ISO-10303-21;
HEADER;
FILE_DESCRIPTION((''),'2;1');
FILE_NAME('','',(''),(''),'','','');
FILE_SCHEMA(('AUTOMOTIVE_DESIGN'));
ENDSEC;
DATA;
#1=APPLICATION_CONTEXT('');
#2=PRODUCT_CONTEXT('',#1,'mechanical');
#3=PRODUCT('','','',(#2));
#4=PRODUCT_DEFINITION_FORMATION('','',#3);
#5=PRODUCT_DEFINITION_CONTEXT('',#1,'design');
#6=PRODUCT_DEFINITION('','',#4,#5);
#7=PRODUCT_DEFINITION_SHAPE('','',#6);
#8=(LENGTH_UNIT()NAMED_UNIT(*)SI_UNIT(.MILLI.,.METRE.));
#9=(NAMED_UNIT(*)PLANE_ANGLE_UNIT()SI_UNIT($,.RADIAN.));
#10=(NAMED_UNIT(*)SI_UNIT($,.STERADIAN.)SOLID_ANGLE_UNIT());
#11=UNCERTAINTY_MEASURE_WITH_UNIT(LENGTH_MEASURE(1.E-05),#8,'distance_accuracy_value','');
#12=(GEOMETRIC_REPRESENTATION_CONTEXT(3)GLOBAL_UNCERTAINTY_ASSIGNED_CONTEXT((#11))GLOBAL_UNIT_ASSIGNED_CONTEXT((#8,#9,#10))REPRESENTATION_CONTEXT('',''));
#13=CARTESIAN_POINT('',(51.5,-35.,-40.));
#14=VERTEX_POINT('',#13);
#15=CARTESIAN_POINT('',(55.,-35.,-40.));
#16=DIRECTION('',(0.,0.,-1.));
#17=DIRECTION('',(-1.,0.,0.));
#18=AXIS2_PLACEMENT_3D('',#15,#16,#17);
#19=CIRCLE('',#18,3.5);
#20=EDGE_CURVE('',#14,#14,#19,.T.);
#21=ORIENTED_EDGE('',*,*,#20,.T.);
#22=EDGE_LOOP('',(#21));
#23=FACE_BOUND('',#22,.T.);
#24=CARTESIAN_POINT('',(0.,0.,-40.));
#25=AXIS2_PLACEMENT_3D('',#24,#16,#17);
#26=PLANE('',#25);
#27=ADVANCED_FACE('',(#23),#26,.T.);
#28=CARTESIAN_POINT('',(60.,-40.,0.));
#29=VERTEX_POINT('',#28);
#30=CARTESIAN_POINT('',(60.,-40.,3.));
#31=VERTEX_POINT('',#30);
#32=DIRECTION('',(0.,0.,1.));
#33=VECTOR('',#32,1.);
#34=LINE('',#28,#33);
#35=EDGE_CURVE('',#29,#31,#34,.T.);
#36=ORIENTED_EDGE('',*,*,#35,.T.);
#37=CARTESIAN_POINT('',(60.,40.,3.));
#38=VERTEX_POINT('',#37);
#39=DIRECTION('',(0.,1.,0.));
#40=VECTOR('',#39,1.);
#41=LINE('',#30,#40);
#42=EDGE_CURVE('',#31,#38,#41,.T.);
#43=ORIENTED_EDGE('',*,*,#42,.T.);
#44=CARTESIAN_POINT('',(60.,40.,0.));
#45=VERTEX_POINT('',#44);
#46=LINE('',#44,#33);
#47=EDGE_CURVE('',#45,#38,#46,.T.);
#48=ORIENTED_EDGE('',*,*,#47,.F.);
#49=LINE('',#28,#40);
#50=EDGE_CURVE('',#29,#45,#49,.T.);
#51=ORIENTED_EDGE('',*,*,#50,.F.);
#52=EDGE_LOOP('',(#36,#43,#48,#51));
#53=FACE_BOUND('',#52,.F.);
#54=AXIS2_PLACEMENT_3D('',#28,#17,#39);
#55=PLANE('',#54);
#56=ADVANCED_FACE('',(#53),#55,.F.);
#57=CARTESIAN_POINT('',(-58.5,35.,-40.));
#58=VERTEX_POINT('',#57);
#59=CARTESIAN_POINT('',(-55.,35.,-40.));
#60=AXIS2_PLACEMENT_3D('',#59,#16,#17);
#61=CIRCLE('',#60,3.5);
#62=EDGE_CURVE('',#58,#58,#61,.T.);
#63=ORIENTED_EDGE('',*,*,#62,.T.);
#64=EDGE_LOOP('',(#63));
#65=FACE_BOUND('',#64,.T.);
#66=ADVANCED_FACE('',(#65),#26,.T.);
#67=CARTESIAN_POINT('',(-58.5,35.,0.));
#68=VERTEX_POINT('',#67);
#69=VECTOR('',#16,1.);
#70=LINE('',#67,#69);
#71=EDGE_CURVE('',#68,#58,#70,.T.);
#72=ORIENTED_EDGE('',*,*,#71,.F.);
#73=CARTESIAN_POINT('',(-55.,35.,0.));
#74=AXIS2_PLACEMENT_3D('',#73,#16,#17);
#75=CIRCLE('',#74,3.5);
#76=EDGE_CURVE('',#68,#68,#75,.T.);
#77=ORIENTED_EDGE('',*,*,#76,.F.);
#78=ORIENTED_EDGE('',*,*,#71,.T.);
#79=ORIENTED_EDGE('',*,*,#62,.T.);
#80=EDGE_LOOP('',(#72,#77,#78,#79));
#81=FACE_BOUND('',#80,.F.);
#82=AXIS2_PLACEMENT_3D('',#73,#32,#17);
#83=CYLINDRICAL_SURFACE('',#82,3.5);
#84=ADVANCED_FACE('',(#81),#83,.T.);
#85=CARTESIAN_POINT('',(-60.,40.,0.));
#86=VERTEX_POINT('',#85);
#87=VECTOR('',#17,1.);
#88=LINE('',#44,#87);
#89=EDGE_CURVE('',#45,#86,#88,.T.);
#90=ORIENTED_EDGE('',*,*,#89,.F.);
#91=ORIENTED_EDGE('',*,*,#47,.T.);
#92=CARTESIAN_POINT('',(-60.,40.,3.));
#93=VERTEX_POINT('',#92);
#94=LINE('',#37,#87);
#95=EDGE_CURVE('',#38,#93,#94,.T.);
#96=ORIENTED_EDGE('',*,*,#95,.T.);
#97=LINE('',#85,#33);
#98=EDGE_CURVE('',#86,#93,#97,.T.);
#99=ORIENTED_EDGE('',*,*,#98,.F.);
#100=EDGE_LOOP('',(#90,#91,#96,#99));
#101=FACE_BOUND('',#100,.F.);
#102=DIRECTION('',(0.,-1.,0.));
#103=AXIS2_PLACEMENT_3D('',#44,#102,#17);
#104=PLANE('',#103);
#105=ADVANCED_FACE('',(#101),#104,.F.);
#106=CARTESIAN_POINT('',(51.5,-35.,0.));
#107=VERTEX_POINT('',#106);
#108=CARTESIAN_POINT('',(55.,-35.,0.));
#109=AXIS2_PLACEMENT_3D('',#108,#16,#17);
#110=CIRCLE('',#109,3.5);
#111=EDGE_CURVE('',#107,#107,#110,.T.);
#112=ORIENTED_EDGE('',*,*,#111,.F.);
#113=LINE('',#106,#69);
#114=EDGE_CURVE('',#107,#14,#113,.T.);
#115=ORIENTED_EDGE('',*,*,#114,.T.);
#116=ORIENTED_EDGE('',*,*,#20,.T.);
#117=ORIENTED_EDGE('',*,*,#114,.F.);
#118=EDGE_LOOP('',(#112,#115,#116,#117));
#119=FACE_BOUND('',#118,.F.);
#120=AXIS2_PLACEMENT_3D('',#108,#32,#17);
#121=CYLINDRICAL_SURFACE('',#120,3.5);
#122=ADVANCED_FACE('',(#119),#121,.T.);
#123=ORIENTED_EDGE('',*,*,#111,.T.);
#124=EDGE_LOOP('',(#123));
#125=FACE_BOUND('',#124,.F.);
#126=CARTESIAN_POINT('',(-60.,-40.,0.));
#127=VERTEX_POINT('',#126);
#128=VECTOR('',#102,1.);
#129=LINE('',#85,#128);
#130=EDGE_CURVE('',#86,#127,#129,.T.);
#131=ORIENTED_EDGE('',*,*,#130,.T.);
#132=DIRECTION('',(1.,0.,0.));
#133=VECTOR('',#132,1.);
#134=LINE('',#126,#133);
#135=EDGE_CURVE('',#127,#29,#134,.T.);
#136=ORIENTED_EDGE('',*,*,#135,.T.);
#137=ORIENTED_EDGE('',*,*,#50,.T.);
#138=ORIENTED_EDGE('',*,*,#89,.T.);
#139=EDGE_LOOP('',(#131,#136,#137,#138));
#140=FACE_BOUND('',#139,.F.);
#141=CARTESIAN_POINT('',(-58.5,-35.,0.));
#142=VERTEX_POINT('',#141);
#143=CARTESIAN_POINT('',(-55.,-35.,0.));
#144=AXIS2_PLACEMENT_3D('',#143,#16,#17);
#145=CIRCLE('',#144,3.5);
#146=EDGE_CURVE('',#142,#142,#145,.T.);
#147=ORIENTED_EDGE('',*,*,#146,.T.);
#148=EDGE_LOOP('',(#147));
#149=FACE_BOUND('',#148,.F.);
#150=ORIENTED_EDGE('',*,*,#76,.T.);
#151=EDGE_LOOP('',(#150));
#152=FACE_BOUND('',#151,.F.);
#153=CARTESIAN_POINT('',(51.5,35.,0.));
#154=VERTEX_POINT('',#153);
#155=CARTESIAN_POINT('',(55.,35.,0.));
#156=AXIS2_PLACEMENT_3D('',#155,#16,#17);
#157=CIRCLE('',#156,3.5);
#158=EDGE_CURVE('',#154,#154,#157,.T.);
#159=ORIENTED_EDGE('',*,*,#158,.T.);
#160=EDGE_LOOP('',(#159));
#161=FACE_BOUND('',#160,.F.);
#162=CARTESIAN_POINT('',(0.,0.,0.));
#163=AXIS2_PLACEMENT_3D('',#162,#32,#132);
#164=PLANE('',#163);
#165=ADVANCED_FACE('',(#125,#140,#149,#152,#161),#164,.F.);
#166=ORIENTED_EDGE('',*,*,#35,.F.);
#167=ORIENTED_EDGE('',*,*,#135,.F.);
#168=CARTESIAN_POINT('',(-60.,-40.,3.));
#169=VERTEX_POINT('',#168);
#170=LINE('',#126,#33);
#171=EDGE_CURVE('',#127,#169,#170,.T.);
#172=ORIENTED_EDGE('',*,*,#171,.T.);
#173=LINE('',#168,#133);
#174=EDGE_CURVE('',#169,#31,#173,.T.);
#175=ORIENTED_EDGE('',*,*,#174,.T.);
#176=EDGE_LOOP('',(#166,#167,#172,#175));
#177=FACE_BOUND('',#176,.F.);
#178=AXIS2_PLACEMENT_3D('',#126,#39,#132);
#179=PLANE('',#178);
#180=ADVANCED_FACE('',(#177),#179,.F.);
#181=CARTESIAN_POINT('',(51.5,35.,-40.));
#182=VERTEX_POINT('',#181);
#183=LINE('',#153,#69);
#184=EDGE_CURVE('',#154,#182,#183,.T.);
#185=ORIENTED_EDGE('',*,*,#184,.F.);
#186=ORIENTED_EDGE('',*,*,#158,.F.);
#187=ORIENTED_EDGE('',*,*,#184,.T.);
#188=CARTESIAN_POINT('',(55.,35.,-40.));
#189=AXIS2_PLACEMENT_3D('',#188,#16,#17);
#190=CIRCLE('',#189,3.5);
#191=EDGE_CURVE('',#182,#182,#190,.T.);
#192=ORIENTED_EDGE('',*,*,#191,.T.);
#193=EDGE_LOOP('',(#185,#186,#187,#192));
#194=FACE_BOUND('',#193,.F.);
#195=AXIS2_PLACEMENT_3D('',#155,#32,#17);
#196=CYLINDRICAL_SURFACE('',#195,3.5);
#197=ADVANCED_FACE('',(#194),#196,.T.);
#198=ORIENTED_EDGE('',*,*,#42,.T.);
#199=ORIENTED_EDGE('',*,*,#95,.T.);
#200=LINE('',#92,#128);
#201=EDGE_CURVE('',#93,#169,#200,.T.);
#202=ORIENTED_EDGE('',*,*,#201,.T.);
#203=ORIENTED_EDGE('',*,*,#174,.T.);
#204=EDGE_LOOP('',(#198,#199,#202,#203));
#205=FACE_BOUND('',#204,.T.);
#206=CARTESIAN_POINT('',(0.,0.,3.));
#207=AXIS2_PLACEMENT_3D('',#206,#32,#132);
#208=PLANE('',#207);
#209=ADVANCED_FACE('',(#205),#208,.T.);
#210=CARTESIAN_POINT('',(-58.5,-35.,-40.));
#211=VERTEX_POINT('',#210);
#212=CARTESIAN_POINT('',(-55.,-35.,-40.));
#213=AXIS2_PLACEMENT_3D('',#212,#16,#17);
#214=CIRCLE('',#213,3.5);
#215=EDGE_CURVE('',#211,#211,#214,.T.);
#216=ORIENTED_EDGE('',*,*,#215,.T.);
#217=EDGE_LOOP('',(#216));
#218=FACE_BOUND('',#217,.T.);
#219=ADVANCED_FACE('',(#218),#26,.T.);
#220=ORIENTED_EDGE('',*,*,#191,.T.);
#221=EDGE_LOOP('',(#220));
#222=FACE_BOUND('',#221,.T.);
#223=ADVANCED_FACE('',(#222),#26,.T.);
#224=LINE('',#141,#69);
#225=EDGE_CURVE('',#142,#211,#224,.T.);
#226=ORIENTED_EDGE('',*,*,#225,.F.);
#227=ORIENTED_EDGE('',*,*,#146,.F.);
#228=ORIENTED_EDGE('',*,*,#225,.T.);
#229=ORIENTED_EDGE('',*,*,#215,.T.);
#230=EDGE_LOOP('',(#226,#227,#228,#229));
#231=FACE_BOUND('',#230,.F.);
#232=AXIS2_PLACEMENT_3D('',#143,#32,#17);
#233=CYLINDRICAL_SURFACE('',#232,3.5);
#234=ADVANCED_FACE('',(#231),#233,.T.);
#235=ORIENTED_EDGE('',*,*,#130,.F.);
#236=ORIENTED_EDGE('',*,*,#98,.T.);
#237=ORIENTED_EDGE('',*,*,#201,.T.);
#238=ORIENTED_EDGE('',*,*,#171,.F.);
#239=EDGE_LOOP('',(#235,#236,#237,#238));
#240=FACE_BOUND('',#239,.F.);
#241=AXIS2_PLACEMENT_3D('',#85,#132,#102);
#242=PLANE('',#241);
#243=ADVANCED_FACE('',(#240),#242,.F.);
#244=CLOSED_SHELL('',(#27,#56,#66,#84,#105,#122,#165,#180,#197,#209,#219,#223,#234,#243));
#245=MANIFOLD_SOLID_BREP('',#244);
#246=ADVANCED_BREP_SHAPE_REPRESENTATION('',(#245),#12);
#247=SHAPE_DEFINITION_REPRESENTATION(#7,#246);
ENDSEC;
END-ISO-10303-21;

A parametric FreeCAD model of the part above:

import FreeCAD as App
import Part
import Sketcher
Q = App.Units.Quantity


def add_polygon(sketch, points):
    """Adds a closed chain of lines whose ends are joined by coincident constraints."""
    first, n = sketch.GeometryCount, len(points)
    for a, b in zip(points, points[1:] + points[:1]):
        sketch.addGeometry(Part.LineSegment(App.Vector(*a, 0), App.Vector(*b, 0)), False)
    for i in range(n):
        sketch.addConstraint(Sketcher.Constraint("Coincident", first + i, 2, first + (i + 1) % n, 1))

doc = App.newDocument("Part")
body = doc.addObject("PartDesign::Body", "Body")

sketch1 = doc.addObject("Sketcher::SketchObject", "Sketch")
body.addObject(sketch1)
sketch1.AttachmentSupport = (doc.XY_Plane, [""])
sketch1.MapMode = "FlatFace"
add_polygon(sketch1, [(-60, -40), (60, -40), (60, 40), (-60, 40)])
sketch1.addConstraint(Sketcher.Constraint("Horizontal", 0))
sketch1.addConstraint(Sketcher.Constraint("Vertical", 1))
sketch1.addConstraint(Sketcher.Constraint("Horizontal", 2))
sketch1.addConstraint(Sketcher.Constraint("Vertical", 3))
sketch1.addConstraint(Sketcher.Constraint("Symmetric", 0, 2, 2, 2, -1, 1))
sketch1.addConstraint(Sketcher.Constraint("DistanceX", -1, 1, 0, 2, Q("60 mm")))
sketch1.addConstraint(Sketcher.Constraint("DistanceY", 1, 1, 1, 2, Q("80 mm")))
pad1 = doc.addObject("PartDesign::Pad", "Pad")
body.addObject(pad1)
pad1.Profile = sketch1
pad1.Length = 3

sketch2 = doc.addObject("Sketcher::SketchObject", "Sketch001")
body.addObject(sketch2)
sketch2.AttachmentSupport = (doc.XY_Plane, [""])
sketch2.MapMode = "FlatFace"
sketch2.addGeometry(Part.Circle(App.Vector(55, -35, 0), App.Vector(0, 0, 1), 3.5), False)
sketch2.addGeometry(Part.Circle(App.Vector(55, 35, 0), App.Vector(0, 0, 1), 3.5), False)
sketch2.addGeometry(Part.Circle(App.Vector(-55, -35, 0), App.Vector(0, 0, 1), 3.5), False)
sketch2.addGeometry(Part.Circle(App.Vector(-55, 35, 0), App.Vector(0, 0, 1), 3.5), False)
sketch2.addConstraint(Sketcher.Constraint("Equal", 0, 1))
sketch2.addConstraint(Sketcher.Constraint("Equal", 1, 2))
sketch2.addConstraint(Sketcher.Constraint("Equal", 2, 3))
sketch2.addConstraint(Sketcher.Constraint("Symmetric", 1, 3, 2, 3, -1, 1))
sketch2.addConstraint(Sketcher.Constraint("Symmetric", 0, 3, 3, 3, -1, 1))
sketch2.addConstraint(Sketcher.Constraint("Symmetric", 0, 3, 2, 3, -2))
sketch2.addConstraint(Sketcher.Constraint("Diameter", 0, Q("7 mm")))
sketch2.addConstraint(Sketcher.Constraint("DistanceX", -1, 1, 0, 3, Q("55 mm")))
sketch2.addConstraint(Sketcher.Constraint("DistanceY", 0, 3, -1, 1, Q("35 mm")))
pad2 = doc.addObject("PartDesign::Pad", "Pad001")
body.addObject(pad2)
pad2.Profile = sketch2
pad2.Length = 40
pad2.Reversed = True

doc.recompute()
